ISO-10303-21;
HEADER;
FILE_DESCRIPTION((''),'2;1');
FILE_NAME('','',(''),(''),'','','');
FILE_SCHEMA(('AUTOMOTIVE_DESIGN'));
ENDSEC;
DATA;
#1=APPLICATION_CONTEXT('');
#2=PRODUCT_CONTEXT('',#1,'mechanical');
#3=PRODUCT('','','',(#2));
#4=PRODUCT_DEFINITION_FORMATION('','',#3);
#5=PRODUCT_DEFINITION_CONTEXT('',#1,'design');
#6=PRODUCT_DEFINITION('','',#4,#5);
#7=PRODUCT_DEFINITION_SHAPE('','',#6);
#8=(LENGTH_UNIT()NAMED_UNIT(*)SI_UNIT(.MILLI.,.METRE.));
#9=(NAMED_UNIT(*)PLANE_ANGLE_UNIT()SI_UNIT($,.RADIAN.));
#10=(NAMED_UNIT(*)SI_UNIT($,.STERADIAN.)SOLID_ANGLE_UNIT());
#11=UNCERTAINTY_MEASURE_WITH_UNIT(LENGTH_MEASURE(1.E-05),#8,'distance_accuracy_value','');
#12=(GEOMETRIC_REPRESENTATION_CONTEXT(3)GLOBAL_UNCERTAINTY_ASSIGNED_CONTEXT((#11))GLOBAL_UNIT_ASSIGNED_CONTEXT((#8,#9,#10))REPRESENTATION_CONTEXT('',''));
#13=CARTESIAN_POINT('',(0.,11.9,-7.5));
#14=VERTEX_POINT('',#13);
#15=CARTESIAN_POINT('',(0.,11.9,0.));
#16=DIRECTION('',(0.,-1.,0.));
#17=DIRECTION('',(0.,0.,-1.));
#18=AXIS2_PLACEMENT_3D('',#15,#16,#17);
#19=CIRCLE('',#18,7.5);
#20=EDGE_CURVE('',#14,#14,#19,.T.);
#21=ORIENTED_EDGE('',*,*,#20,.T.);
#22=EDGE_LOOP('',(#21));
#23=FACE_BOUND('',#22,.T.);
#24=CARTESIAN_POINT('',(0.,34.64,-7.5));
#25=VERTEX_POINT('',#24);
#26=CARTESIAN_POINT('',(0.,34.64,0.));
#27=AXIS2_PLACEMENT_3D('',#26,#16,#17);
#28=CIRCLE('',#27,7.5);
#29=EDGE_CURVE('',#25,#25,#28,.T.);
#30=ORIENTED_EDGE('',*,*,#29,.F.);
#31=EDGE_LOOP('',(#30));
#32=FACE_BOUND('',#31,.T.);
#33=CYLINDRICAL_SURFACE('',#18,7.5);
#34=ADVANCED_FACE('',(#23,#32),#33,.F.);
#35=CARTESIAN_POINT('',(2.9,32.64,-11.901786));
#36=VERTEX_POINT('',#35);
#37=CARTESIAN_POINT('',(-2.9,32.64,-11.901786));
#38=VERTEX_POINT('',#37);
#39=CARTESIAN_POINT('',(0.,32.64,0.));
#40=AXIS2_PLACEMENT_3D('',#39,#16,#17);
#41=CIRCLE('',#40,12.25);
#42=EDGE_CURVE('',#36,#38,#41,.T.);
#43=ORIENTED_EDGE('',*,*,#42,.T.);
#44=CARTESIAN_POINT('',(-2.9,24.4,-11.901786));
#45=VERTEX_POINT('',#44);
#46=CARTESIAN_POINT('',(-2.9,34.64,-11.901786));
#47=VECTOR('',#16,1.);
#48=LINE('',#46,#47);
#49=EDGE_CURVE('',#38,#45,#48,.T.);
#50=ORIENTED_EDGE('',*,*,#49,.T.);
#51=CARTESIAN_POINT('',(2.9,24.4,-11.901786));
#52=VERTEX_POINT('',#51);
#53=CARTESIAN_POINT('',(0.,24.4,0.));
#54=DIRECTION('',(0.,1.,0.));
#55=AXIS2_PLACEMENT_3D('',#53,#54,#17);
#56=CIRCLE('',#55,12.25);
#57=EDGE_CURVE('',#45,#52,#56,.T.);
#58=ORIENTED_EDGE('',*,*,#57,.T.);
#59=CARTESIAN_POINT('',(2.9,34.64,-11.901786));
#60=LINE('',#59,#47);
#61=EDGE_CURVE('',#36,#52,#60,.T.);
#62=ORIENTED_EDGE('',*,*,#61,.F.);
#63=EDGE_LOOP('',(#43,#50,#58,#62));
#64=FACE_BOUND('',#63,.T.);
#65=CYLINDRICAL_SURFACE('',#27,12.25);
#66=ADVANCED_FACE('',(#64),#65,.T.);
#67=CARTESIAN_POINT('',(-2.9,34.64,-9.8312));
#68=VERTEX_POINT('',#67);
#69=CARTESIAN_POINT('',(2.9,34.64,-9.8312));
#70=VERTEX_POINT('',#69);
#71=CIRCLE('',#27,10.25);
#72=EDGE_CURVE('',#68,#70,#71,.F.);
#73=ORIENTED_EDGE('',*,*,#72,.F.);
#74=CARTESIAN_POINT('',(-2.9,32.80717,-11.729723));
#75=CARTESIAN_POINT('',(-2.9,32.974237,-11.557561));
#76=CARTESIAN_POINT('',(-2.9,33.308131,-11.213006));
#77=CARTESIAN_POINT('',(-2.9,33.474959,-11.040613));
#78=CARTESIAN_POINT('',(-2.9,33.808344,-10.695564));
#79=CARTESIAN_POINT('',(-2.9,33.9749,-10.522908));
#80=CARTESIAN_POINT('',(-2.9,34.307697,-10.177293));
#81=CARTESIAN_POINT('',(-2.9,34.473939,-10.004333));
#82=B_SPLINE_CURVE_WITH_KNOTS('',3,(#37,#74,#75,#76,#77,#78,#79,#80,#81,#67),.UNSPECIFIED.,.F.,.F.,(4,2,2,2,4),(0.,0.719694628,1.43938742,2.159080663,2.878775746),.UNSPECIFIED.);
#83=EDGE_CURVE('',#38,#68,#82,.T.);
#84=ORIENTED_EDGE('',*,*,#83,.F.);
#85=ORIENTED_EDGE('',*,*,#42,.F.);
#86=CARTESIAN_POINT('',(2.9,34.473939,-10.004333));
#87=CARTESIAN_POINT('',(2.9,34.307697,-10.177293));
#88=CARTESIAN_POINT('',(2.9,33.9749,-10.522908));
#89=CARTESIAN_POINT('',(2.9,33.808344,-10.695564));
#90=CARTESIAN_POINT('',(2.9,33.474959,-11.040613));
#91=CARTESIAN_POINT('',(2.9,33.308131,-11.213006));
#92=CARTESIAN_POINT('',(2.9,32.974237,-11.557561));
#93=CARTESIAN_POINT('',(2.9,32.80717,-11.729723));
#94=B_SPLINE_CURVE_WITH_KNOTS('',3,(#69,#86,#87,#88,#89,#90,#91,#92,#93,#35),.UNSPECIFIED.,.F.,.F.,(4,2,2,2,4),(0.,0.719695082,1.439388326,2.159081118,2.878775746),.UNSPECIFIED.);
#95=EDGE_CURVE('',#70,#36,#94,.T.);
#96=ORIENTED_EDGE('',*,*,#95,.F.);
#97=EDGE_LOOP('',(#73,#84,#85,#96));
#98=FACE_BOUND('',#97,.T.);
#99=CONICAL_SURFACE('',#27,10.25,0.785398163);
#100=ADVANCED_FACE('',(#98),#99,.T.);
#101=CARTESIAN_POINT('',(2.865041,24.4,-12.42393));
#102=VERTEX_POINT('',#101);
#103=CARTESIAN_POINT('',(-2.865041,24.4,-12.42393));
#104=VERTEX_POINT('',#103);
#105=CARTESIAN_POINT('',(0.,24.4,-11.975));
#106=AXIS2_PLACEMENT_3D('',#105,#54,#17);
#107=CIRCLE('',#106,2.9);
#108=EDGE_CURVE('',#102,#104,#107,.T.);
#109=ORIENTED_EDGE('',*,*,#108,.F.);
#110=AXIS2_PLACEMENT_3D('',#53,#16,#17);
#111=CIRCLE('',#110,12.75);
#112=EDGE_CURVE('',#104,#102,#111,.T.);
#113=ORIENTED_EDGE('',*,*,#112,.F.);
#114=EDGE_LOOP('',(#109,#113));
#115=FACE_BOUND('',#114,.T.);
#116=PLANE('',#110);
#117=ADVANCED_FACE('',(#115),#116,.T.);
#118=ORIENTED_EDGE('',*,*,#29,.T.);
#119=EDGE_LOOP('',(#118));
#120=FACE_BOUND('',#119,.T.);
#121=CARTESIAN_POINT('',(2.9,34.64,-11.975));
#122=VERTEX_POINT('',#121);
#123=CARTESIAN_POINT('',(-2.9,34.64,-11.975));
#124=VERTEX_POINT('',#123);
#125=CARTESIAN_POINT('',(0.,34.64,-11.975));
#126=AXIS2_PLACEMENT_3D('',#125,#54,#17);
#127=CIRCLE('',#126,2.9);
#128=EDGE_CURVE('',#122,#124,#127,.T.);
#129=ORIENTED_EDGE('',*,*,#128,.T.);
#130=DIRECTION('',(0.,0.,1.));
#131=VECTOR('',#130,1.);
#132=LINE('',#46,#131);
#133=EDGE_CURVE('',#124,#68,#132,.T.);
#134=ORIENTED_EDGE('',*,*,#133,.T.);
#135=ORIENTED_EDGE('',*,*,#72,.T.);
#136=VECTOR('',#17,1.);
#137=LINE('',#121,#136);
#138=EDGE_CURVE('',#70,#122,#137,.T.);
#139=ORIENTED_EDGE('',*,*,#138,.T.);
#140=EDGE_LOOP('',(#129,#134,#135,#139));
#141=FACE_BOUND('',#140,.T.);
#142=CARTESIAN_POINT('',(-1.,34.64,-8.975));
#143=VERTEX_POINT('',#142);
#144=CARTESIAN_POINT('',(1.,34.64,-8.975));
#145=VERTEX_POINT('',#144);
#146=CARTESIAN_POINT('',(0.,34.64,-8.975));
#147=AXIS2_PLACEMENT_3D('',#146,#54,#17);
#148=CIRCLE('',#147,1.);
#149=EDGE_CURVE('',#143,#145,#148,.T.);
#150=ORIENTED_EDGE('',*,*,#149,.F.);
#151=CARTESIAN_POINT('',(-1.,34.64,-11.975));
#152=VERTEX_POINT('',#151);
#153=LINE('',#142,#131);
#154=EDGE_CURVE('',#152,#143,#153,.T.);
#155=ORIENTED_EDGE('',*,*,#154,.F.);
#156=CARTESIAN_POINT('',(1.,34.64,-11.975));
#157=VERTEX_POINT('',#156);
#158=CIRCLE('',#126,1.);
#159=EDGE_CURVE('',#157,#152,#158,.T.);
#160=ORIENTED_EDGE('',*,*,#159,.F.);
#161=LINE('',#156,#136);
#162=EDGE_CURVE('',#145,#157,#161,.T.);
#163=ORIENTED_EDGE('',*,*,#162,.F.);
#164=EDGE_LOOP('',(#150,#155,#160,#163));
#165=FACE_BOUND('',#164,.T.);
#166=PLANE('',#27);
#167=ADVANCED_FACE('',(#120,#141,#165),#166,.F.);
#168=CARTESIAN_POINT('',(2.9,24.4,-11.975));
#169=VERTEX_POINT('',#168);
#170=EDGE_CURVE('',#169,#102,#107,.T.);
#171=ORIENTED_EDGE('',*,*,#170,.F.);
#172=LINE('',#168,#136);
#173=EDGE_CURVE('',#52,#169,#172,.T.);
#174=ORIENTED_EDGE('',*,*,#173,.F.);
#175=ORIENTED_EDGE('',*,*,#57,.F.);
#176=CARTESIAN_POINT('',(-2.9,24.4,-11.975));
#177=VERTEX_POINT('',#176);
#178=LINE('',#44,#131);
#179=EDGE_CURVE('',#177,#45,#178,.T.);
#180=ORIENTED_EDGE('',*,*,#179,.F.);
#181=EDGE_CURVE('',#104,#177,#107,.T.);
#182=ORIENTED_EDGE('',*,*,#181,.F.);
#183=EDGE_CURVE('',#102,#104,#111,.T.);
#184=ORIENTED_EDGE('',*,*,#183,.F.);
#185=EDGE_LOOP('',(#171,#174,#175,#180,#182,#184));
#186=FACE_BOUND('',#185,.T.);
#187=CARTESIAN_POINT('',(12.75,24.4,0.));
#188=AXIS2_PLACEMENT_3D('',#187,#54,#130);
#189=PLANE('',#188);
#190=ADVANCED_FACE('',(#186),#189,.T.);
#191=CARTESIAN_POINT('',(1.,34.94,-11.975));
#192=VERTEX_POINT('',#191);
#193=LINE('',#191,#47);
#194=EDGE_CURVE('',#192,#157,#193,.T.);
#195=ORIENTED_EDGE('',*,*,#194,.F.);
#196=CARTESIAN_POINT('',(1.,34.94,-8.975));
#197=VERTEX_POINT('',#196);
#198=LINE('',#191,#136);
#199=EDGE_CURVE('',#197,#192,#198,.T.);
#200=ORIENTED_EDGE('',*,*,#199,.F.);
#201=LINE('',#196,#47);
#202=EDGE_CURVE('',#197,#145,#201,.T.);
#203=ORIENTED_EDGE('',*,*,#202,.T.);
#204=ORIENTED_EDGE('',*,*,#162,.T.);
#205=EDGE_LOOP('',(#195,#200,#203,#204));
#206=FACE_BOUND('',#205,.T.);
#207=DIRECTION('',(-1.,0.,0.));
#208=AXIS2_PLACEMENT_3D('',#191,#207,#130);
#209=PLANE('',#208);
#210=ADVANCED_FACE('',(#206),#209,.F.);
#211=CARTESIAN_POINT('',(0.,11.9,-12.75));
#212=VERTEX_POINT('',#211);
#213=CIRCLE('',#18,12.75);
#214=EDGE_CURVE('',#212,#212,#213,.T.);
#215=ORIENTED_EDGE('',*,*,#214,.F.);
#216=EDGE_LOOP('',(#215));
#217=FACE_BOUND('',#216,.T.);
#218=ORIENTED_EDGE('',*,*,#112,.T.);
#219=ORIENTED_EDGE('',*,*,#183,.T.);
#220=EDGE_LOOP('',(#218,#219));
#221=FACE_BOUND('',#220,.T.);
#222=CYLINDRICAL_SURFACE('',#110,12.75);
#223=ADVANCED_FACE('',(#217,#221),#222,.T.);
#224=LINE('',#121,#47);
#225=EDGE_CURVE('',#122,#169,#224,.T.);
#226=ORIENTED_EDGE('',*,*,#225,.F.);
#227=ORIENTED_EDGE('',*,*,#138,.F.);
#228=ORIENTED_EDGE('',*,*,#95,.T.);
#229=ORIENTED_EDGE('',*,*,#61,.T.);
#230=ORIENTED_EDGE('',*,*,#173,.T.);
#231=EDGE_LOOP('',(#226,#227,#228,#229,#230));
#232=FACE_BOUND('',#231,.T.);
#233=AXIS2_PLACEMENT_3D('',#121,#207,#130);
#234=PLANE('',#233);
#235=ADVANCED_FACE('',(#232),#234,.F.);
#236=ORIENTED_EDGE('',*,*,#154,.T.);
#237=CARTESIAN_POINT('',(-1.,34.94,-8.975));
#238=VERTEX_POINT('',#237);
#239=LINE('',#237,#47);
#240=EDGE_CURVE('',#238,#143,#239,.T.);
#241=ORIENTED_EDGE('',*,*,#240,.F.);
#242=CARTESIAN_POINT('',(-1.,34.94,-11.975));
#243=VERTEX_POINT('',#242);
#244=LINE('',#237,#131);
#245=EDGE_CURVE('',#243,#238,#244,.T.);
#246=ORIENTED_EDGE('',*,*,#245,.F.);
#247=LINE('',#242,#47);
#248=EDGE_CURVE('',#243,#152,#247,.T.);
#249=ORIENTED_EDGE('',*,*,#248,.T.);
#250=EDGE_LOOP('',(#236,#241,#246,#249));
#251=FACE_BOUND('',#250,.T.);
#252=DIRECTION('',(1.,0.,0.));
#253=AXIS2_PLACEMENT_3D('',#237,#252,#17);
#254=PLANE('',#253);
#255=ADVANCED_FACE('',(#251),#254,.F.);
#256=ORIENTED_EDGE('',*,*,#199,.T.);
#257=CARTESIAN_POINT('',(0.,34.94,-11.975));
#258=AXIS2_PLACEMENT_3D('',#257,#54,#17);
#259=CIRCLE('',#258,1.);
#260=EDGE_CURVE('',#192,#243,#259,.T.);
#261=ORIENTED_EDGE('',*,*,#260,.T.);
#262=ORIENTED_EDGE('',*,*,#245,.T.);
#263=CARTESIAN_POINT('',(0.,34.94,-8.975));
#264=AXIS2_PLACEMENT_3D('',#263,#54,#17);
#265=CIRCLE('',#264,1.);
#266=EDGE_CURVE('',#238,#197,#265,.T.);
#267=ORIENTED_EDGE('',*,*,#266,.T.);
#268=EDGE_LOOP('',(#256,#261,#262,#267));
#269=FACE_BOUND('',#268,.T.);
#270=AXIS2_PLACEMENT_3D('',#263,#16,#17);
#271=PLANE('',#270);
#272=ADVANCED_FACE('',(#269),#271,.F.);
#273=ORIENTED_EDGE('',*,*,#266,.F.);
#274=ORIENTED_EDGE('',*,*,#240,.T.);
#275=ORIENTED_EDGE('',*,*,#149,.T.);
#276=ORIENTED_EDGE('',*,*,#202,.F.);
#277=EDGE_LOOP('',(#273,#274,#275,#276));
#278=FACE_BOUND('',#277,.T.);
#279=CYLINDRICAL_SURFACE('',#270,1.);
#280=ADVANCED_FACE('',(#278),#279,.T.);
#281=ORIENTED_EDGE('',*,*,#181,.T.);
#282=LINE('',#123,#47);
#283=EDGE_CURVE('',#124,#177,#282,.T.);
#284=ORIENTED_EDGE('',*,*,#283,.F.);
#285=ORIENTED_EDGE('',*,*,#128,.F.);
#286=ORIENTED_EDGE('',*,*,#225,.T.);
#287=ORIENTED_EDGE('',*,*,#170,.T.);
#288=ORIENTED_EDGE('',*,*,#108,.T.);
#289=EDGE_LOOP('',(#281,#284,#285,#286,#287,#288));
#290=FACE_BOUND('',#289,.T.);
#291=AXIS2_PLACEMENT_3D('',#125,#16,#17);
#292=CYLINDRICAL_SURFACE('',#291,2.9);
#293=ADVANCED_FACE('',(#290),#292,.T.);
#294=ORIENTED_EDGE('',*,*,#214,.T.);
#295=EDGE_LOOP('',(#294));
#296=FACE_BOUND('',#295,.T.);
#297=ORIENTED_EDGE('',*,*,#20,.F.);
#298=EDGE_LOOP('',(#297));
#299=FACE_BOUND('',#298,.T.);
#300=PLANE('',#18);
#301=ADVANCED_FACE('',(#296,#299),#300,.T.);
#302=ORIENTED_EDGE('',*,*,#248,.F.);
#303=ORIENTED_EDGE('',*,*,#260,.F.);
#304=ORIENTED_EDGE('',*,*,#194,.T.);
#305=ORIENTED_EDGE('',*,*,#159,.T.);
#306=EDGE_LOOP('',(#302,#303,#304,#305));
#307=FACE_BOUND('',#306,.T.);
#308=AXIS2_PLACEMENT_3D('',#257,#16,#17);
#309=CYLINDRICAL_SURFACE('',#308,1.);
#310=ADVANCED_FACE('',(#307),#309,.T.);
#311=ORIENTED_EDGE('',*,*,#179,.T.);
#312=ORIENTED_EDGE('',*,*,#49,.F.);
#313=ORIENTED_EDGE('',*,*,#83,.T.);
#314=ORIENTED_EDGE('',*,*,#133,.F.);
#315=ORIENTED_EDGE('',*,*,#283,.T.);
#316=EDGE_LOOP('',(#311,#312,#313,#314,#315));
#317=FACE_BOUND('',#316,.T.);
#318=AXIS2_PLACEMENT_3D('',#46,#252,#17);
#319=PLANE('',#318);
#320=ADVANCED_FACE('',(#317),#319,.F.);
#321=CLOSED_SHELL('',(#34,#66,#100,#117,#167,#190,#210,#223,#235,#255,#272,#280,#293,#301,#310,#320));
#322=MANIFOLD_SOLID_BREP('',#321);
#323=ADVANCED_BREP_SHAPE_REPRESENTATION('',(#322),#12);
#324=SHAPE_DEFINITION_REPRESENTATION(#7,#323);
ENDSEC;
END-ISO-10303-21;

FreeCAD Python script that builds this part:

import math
import FreeCAD as App
import Part
import Sketcher
from FreeCAD import Vector


def edges_at(feature, points):
    """Names of the edges that pass closest to the given points."""
    edges = feature.Shape.Edges
    near = lambda p: min(range(len(edges)), key=lambda i: edges[i].distToShape(Part.Vertex(*p))[0])
    return sorted({f"Edge{near(p) + 1}" for p in points})

doc = App.newDocument("Part")
body = doc.addObject("PartDesign::Body", "Body")

sketch1 = body.newObject("Sketcher::SketchObject", "Sketch")
sketch1.AttachmentSupport = (doc.getObject("XY_Plane"), [""])
sketch1.MapMode = "FlatFace"
sketch1.addGeometry(Part.LineSegment(Vector(0, 24, 0), Vector(0, 12, 0)), False)
sketch1.addGeometry(Part.LineSegment(Vector(0, 12, 0), Vector(13, 12, 0)), False)
sketch1.addGeometry(Part.LineSegment(Vector(13, 12, 0), Vector(13, 24, 0)), False)
sketch1.addGeometry(Part.LineSegment(Vector(13, 24, 0), Vector(0, 24, 0)), False)
sketch1.addConstraint(Sketcher.Constraint("Coincident", 0, 2, 1, 1))
sketch1.addConstraint(Sketcher.Constraint("Coincident", 1, 2, 2, 1))
sketch1.addConstraint(Sketcher.Constraint("Coincident", 2, 2, 3, 1))
sketch1.addConstraint(Sketcher.Constraint("Coincident", 3, 2, 0, 1))
sketch1.addConstraint(Sketcher.Constraint("Vertical", 0))
sketch1.addConstraint(Sketcher.Constraint("Horizontal", 1))
sketch1.addConstraint(Sketcher.Constraint("Vertical", 2))
sketch1.addConstraint(Sketcher.Constraint("Horizontal", 3))
sketch1.addConstraint(Sketcher.Constraint("PointOnObject", 0, 2, -2))
sketch1.addConstraint(Sketcher.Constraint("DistanceY", 0, 2, 0, 1, 12.5))
sketch1.addConstraint(Sketcher.Constraint("DistanceX", 1, 1, 1, 2, 12.75))
sketch1.addConstraint(Sketcher.Constraint("DistanceY", -1, 1, 0, 2, 11.9))
revolution = body.newObject("PartDesign::Revolution", "Revolution")
revolution.Profile = sketch1
revolution.ReferenceAxis = (sketch1, ["V_Axis"])
revolution.Angle = 360

sketch2 = body.newObject("Sketcher::SketchObject", "Sketch001")
sketch2.AttachmentSupport = (doc.getObject("XZ_Plane"), [""])
sketch2.MapMode = "FlatFace"
sketch2.AttachmentOffset = App.Placement(Vector(0, 0, -24.4), App.Rotation())
sketch2.addGeometry(Part.LineSegment(Vector(-2.9, -11.97, 0), Vector(-2.9, -11.9, 0)), False)
sketch2.addGeometry(Part.ArcOfCircle(Part.Circle(Vector(0, 0, 0), Vector(0, 0, 1), 12.25), math.radians(-76), math.radians(256)), False)
sketch2.addGeometry(Part.LineSegment(Vector(2.9, -11.9, 0), Vector(2.9, -11.97, 0)), False)
sketch2.addGeometry(Part.ArcOfCircle(Part.Circle(Vector(0, -11.97, 0), Vector(0, 0, 1), 2.9), math.radians(180), math.radians(360)), False)
sketch2.addConstraint(Sketcher.Constraint("Coincident", 0, 2, 1, 2))
sketch2.addConstraint(Sketcher.Constraint("Coincident", 1, 1, 2, 1))
sketch2.addConstraint(Sketcher.Constraint("Tangent", 2, 2, 3, 2))
sketch2.addConstraint(Sketcher.Constraint("Tangent", 3, 1, 0, 1))
sketch2.addConstraint(Sketcher.Constraint("Vertical", 0))
sketch2.addConstraint(Sketcher.Constraint("Vertical", 2))
sketch2.addConstraint(Sketcher.Constraint("Coincident", 1, 3, -1, 1))
sketch2.addConstraint(Sketcher.Constraint("PointOnObject", 3, 3, -2))
sketch2.addConstraint(Sketcher.Constraint("Radius", 3, 2.9))
sketch2.addConstraint(Sketcher.Constraint("Radius", 1, 12.25))
sketch2.addConstraint(Sketcher.Constraint("DistanceY", 3, 3, -1, 1, 11.975))
pad1 = body.newObject("PartDesign::Pad", "Pad")
pad1.Profile = sketch2
pad1.Length = 10.24
pad1.Reversed = True

sketch3 = body.newObject("Sketcher::SketchObject", "Sketch002")
sketch3.AttachmentSupport = (doc.getObject("XZ_Plane"), [""])
sketch3.MapMode = "FlatFace"
sketch3.AttachmentOffset = App.Placement(Vector(0, 0, -34.64), App.Rotation())
sketch3.addGeometry(Part.LineSegment(Vector(-1, -12, 0), Vector(-1, -9, 0)), False)
sketch3.addGeometry(Part.ArcOfCircle(Part.Circle(Vector(0, -9, 0), Vector(0, 0, 1), 1), math.radians(0), math.radians(180)), False)
sketch3.addGeometry(Part.LineSegment(Vector(1, -9, 0), Vector(1, -12, 0)), False)
sketch3.addGeometry(Part.ArcOfCircle(Part.Circle(Vector(0, -12, 0), Vector(0, 0, 1), 1), math.radians(180), math.radians(360)), False)
sketch3.addConstraint(Sketcher.Constraint("Tangent", 0, 2, 1, 2))
sketch3.addConstraint(Sketcher.Constraint("Tangent", 1, 1, 2, 1))
sketch3.addConstraint(Sketcher.Constraint("Tangent", 2, 2, 3, 2))
sketch3.addConstraint(Sketcher.Constraint("Tangent", 3, 1, 0, 1))
sketch3.addConstraint(Sketcher.Constraint("Vertical", 0))
sketch3.addConstraint(Sketcher.Constraint("Vertical", 2))
sketch3.addConstraint(Sketcher.Constraint("PointOnObject", 1, 3, -2))
sketch3.addConstraint(Sketcher.Constraint("Radius", 1, 1.0))
sketch3.addConstraint(Sketcher.Constraint("DistanceY", 0, 1, 0, 2, 3.0))
sketch3.addConstraint(Sketcher.Constraint("DistanceY", 1, 3, -1, 1, 8.975))
pad2 = body.newObject("PartDesign::Pad", "Pad001")
pad2.Profile = sketch3
pad2.Length = 0.3
pad2.Reversed = True

sketch4 = body.newObject("Sketcher::SketchObject", "Sketch003")
sketch4.AttachmentSupport = (doc.getObject("XZ_Plane"), [""])
sketch4.MapMode = "FlatFace"
sketch4.AttachmentOffset = App.Placement(Vector(0, 0, -11.9), App.Rotation())
sketch4.addGeometry(Part.Circle(Vector(0, 0, 0), Vector(0, 0, 1), 8), False)
sketch4.addConstraint(Sketcher.Constraint("Coincident", 0, 3, -1, 1))
sketch4.addConstraint(Sketcher.Constraint("Diameter", 0, 15.0))
doc.recompute()
hole = body.newObject("PartDesign::Hole", "Hole")
hole.Profile = sketch4
hole.ThreadType = "None"
hole.Diameter = 15
hole.DepthType = "Dimension"
hole.Depth = 23.04
hole.DrillPoint = "Flat"
doc.recompute()

chamfer = body.newObject("PartDesign::Chamfer", "Chamfer")
chamfer.Base = (hole, edges_at(hole, [(0, 34.64, 12.25)]))
chamfer.Size = 2

doc.recompute()
